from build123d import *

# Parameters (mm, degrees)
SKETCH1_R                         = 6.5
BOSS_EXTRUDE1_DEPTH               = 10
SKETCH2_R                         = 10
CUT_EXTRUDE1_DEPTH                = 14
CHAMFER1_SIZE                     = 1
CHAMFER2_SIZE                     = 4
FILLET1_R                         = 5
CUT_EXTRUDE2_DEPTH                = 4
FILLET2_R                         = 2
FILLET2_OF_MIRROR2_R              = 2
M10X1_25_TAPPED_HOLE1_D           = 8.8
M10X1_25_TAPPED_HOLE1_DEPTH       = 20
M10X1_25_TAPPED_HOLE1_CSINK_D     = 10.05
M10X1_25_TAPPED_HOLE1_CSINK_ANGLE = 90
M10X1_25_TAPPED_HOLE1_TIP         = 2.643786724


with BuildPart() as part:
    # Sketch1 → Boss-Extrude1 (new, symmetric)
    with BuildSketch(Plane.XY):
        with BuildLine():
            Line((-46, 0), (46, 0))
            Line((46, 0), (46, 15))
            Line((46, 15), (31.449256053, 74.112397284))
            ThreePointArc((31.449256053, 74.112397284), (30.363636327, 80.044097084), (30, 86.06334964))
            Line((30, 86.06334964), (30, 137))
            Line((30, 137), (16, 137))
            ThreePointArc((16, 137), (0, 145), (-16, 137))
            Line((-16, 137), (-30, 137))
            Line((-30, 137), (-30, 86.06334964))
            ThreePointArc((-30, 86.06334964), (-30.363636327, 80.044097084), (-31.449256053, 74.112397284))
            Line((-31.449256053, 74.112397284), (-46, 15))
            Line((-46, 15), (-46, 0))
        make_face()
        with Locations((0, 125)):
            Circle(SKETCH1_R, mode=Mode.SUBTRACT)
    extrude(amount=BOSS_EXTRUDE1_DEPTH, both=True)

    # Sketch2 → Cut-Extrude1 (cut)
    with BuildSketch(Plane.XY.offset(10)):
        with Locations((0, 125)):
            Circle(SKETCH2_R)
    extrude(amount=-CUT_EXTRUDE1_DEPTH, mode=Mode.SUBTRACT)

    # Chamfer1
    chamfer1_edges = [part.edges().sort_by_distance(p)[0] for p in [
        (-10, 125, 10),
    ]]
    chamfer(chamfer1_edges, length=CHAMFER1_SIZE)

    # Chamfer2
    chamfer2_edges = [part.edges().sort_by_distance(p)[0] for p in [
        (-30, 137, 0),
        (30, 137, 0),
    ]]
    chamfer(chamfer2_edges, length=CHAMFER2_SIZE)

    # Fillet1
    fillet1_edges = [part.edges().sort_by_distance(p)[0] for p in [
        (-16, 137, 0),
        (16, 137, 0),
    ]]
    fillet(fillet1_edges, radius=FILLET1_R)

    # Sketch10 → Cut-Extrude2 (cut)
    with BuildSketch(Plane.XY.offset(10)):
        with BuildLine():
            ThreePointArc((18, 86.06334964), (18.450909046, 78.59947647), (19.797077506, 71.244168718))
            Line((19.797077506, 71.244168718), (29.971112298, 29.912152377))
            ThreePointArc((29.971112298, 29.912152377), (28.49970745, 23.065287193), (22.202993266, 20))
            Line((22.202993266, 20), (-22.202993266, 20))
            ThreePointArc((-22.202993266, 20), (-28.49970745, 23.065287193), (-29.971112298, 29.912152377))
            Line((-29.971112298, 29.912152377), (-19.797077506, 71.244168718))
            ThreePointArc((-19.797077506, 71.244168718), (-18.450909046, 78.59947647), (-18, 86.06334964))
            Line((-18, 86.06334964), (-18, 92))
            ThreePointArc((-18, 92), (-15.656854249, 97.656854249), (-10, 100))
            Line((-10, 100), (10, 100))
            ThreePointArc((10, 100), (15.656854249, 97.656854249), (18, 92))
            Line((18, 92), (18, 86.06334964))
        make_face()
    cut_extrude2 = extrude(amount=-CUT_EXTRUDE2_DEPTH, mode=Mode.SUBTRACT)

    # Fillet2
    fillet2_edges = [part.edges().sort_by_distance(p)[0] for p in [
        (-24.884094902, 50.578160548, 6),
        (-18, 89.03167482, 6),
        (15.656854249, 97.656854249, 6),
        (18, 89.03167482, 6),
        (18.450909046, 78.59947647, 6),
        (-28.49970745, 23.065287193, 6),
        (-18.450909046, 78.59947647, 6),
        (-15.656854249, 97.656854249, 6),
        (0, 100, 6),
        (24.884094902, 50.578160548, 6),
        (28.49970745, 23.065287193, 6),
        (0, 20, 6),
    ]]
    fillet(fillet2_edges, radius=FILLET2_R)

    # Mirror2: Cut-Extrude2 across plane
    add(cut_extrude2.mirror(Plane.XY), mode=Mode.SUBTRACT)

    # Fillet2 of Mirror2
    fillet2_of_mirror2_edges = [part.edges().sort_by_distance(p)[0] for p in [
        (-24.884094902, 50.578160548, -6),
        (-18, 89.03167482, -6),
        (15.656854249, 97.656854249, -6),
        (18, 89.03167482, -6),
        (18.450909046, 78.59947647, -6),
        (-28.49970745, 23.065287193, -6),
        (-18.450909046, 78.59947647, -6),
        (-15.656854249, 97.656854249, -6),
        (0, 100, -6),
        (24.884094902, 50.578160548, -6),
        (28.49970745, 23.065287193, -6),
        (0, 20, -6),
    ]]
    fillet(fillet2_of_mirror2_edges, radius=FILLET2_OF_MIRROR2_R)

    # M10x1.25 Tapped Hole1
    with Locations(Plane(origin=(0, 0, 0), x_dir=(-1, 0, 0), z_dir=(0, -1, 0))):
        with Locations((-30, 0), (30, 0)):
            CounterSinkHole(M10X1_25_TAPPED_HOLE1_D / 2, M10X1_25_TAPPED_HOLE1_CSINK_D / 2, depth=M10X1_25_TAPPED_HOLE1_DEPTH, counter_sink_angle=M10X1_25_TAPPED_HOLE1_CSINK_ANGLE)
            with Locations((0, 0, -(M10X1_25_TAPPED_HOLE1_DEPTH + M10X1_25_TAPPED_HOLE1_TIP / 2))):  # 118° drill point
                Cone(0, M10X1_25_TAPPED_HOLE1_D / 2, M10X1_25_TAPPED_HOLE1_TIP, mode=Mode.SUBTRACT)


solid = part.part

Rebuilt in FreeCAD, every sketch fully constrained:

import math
import FreeCAD as App
import Part
import Sketcher
Q = App.Units.Quantity


def edges_at(feature, points):
    """Names of the edges that pass closest to the given points."""
    edges = feature.Shape.Edges
    near = lambda p: min(range(len(edges)), key=lambda i: edges[i].distToShape(Part.Vertex(*p))[0])
    return sorted({f"Edge{near(p) + 1}" for p in points})

doc = App.newDocument("Part")
body = doc.addObject("PartDesign::Body", "Body")

# Sketch on XY plane
sketch1 = body.newObject("Sketcher::SketchObject", "Sketch")
sketch1.AttachmentSupport = (doc.getObject("XY_Plane"), [""])
sketch1.MapMode = "FlatFace"
sketch1.addGeometry([
    Part.LineSegment(App.Vector(-46, 0, 0), App.Vector(46, 0, 0)),  # 0
    Part.LineSegment(App.Vector(46, 0, 0), App.Vector(46, 15, 0)),  # 1
    Part.LineSegment(App.Vector(46, 15, 0), App.Vector(31, 74, 0)),  # 2
    Part.ArcOfCircle(Part.Circle(App.Vector(80, 86, 0), App.Vector(0, 0, 1), 50), math.radians(180), math.radians(193.83)),  # 3
    Part.LineSegment(App.Vector(30, 86, 0), App.Vector(30, 137, 0)),  # 4
    Part.LineSegment(App.Vector(30, 137, 0), App.Vector(16, 137, 0)),  # 5
    Part.ArcOfCircle(Part.Circle(App.Vector(0, 125, 0), App.Vector(0, 0, 1), 20), math.radians(37), math.radians(143)),  # 6
    Part.LineSegment(App.Vector(-16, 137, 0), App.Vector(-30, 137, 0)),  # 7
    Part.LineSegment(App.Vector(-30, 137, 0), App.Vector(-30, 86, 0)),  # 8
    Part.ArcOfCircle(Part.Circle(App.Vector(-80, 86, 0), App.Vector(0, 0, 1), 50), math.radians(-13.83), math.radians(0)),  # 9
    Part.LineSegment(App.Vector(-31, 74, 0), App.Vector(-46, 15, 0)),  # 10
    Part.LineSegment(App.Vector(-46, 15, 0), App.Vector(-46, 0, 0)),  # 11
    Part.Circle(App.Vector(0, 125, 0), App.Vector(0, 0, 1), 6),  # 12
], False)
sketch1.addConstraint([
    Sketcher.Constraint("Coincident", 0, 2, 1, 1),
    Sketcher.Constraint("Coincident", 1, 2, 2, 1),
    Sketcher.Constraint("Tangent", 2, 2, 3, 2),
    Sketcher.Constraint("Tangent", 3, 1, 4, 1),
    Sketcher.Constraint("Coincident", 4, 2, 5, 1),
    Sketcher.Constraint("Coincident", 5, 2, 6, 1),
    Sketcher.Constraint("Coincident", 6, 2, 7, 1),
    Sketcher.Constraint("Coincident", 7, 2, 8, 1),
    Sketcher.Constraint("Tangent", 8, 2, 9, 2),
    Sketcher.Constraint("Tangent", 9, 1, 10, 1),
    Sketcher.Constraint("Coincident", 10, 2, 11, 1),
    Sketcher.Constraint("Coincident", 11, 2, 0, 1),
    Sketcher.Constraint("Horizontal", 0),
    Sketcher.Constraint("Vertical", 1),
    Sketcher.Constraint("Vertical", 4),
    Sketcher.Constraint("Horizontal", 5),
    Sketcher.Constraint("Horizontal", 7),
    Sketcher.Constraint("Vertical", 8),
    Sketcher.Constraint("Vertical", 11),
    Sketcher.Constraint("Coincident", 12, 3, 6, 3),
    Sketcher.Constraint("Equal", 3, 9),
    Sketcher.Constraint("Symmetric", 0, 2, 11, 2, -1, 1),
    Sketcher.Constraint("Symmetric", 3, 3, 9, 3, -2),
    Sketcher.Constraint("Symmetric", 5, 2, 6, 2, -2),
    Sketcher.Constraint("Horizontal", 2, 2, 9, 1),
    Sketcher.Constraint("Diameter", 12, Q("13 mm")),
    Sketcher.Constraint("Radius", 3, Q("50 mm")),
    Sketcher.Constraint("Radius", 6, Q("20 mm")),
    Sketcher.Constraint("DistanceX", 0, 1, 0, 2, Q("92 mm")),
    Sketcher.Constraint("DistanceX", 5, 2, 5, 1, Q("14 mm")),
    Sketcher.Constraint("DistanceY", 1, 1, 1, 2, Q("15 mm")),
    Sketcher.Constraint("DistanceX", -1, 1, 3, 3, Q("80 mm")),
    Sketcher.Constraint("DistanceY", -1, 1, 6, 3, Q("125 mm")),
    Sketcher.Constraint("DistanceY", 4, 1, 4, 2, Q("50.93665 mm")),
])
pad1 = body.newObject("PartDesign::Pad", "Pad")
pad1.Profile = sketch1
pad1.Length = 20
pad1.Midplane = True

# Sketch on XY plane
sketch2 = body.newObject("Sketcher::SketchObject", "Sketch001")
sketch2.AttachmentSupport = (doc.getObject("XY_Plane"), [""])
sketch2.MapMode = "FlatFace"
sketch2.AttachmentOffset = App.Placement(App.Vector(0, 0, 10), App.Rotation())
sketch2.addGeometry(Part.Circle(App.Vector(0, 125, 0), App.Vector(0, 0, 1), 10), False)
sketch2.addConstraint([
    Sketcher.Constraint("PointOnObject", 0, 3, -2),
    Sketcher.Constraint("Diameter", 0, Q("20 mm")),
    Sketcher.Constraint("DistanceY", -1, 1, 0, 3, Q("125 mm")),
])
pocket1 = body.newObject("PartDesign::Pocket", "Pocket")
pocket1.Profile = sketch2
pocket1.Length = 14
doc.recompute()

chamfer = body.newObject("PartDesign::Chamfer", "Chamfer")
chamfer.Base = (pocket1, edges_at(pocket1, [(-10, 125, 10)]))
chamfer.Size = 1
doc.recompute()

chamfer2 = body.newObject("PartDesign::Chamfer", "Chamfer001")
chamfer2.Base = (chamfer, edges_at(chamfer, [(-30, 137, 0), (30, 137, 0)]))
chamfer2.Size = 4
doc.recompute()

fillet = body.newObject("PartDesign::Fillet", "Fillet")
fillet.Base = (chamfer2, edges_at(chamfer2, [(-16, 137, 0), (16, 137, 0)]))
fillet.Radius = 5

# Sketch on XY plane
sketch3 = body.newObject("Sketcher::SketchObject", "Sketch002")
sketch3.AttachmentSupport = (doc.getObject("XY_Plane"), [""])
sketch3.MapMode = "FlatFace"
sketch3.AttachmentOffset = App.Placement(App.Vector(0, 0, 10), App.Rotation())
sketch3.addGeometry([
    Part.ArcOfCircle(Part.Circle(App.Vector(80, 86, 0), App.Vector(0, 0, 1), 62), math.radians(-180), math.radians(-166.17)),  # 0
    Part.LineSegment(App.Vector(18, 86, 0), App.Vector(18, 92, 0)),  # 1
    Part.ArcOfCircle(Part.Circle(App.Vector(10, 92, 0), App.Vector(0, 0, 1), 8), math.radians(0), math.radians(90)),  # 2
    Part.LineSegment(App.Vector(10, 100, 0), App.Vector(-10, 100, 0)),  # 3
    Part.ArcOfCircle(Part.Circle(App.Vector(-10, 92, 0), App.Vector(0, 0, 1), 8), math.radians(90), math.radians(180)),  # 4
    Part.LineSegment(App.Vector(-18, 92, 0), App.Vector(-18, 86, 0)),  # 5
    Part.ArcOfCircle(Part.Circle(App.Vector(-80, 86, 0), App.Vector(0, 0, 1), 62), math.radians(-13.83), math.radians(0)),  # 6
    Part.LineSegment(App.Vector(-20, 71, 0), App.Vector(-30, 30, 0)),  # 7
    Part.ArcOfCircle(Part.Circle(App.Vector(-22, 28, 0), App.Vector(0, 0, 1), 8), math.radians(166), math.radians(270)),  # 8
    Part.LineSegment(App.Vector(-22, 20, 0), App.Vector(22, 20, 0)),  # 9
    Part.ArcOfCircle(Part.Circle(App.Vector(22, 28, 0), App.Vector(0, 0, 1), 8), math.radians(-90), math.radians(14)),  # 10
    Part.LineSegment(App.Vector(30, 30, 0), App.Vector(20, 71, 0)),  # 11
], False)
sketch3.addConstraint([
    Sketcher.Constraint("Tangent", 0, 1, 1, 1),
    Sketcher.Constraint("Tangent", 1, 2, 2, 1),
    Sketcher.Constraint("Tangent", 2, 2, 3, 1),
    Sketcher.Constraint("Tangent", 3, 2, 4, 1),
    Sketcher.Constraint("Tangent", 4, 2, 5, 1),
    Sketcher.Constraint("Tangent", 5, 2, 6, 2),
    Sketcher.Constraint("Tangent", 6, 1, 7, 1),
    Sketcher.Constraint("Tangent", 7, 2, 8, 1),
    Sketcher.Constraint("Tangent", 8, 2, 9, 1),
    Sketcher.Constraint("Tangent", 9, 2, 10, 1),
    Sketcher.Constraint("Tangent", 10, 2, 11, 1),
    Sketcher.Constraint("Tangent", 11, 2, 0, 2),
    Sketcher.Constraint("Vertical", 1),
    Sketcher.Constraint("Horizontal", 3),
    Sketcher.Constraint("Vertical", 5),
    Sketcher.Constraint("Horizontal", 9),
    Sketcher.Constraint("Equal", 2, 4),
    Sketcher.Constraint("Equal", 0, 6),
    Sketcher.Constraint("Equal", 4, 8),
    Sketcher.Constraint("Equal", 8, 10),
    Sketcher.Constraint("Symmetric", 0, 3, 6, 3, -2),
    Sketcher.Constraint("Horizontal", 7, 2, 10, 2),
    Sketcher.Constraint("Radius", 0, Q("62 mm")),
    Sketcher.Constraint("Radius", 2, Q("8 mm")),
    Sketcher.Constraint("DistanceX", 3, 2, 3, 1, Q("20 mm")),
    Sketcher.Constraint("DistanceY", -1, 1, 2, 3, Q("92 mm")),
    Sketcher.Constraint("DistanceY", -1, 1, 8, 3, Q("28 mm")),
    Sketcher.Constraint("DistanceY", 1, 1, 1, 2, Q("5.93665 mm")),
    Sketcher.Constraint("Distance", 7, Q("42.565791 mm")),
])
pocket2 = body.newObject("PartDesign::Pocket", "Pocket001")
pocket2.Profile = sketch3
pocket2.Length = 4
doc.recompute()

fillet2 = body.newObject("PartDesign::Fillet", "Fillet001")
fillet2.Base = (pocket2, edges_at(pocket2, [
    (-24.884, 50.578, 6),
    (-18, 89.032, 6),
    (15.657, 97.657, 6),
    (18, 89.032, 6),
    (18.451, 78.599, 6),
    (-28.5, 23.065, 6),
    (-18.451, 78.599, 6),
    (-15.657, 97.657, 6),
    (0, 100, 6),
    (24.884, 50.578, 6),
    (28.5, 23.065, 6),
    (0, 20, 6),
]))
fillet2.Radius = 2
doc.recompute()

mirrored = body.newObject("PartDesign::Mirrored", "Mirrored")
mirrored.Originals = [pocket2]
mirrored.MirrorPlane = (doc.getObject("XY_Plane"), [""])
body.Tip = mirrored
doc.recompute()

fillet3 = body.newObject("PartDesign::Fillet", "Fillet002")
fillet3.Base = (mirrored, edges_at(mirrored, [
    (-24.884, 50.578, -6),
    (-18, 89.032, -6),
    (15.657, 97.657, -6),
    (18, 89.032, -6),
    (18.451, 78.599, -6),
    (-28.5, 23.065, -6),
    (-18.451, 78.599, -6),
    (-15.657, 97.657, -6),
    (0, 100, -6),
    (24.884, 50.578, -6),
    (28.5, 23.065, -6),
    (0, 20, -6),
]))
fillet3.Radius = 2

# Sketch on XZ plane
sketch4 = body.newObject("Sketcher::SketchObject", "Sketch003")
sketch4.AttachmentSupport = (doc.getObject("XZ_Plane"), [""])
sketch4.MapMode = "FlatFace"
sketch4.addGeometry([
    Part.Circle(App.Vector(30, 0, 0), App.Vector(0, 0, 1), 4.4),
    Part.Circle(App.Vector(-30, 0, 0), App.Vector(0, 0, 1), 4.4),
], False)
sketch4.addConstraint([
    Sketcher.Constraint("Equal", 0, 1),
    Sketcher.Constraint("Symmetric", 0, 3, 1, 3, -1, 1),
    Sketcher.Constraint("PointOnObject", 0, 3, -1),
    Sketcher.Constraint("Diameter", 0, Q("8.8 mm")),
    Sketcher.Constraint("DistanceX", -1, 1, 0, 3, Q("30 mm")),
])
doc.recompute()
hole = body.newObject("PartDesign::Hole", "Hole")
hole.Profile = sketch4
hole.ThreadType = "None"
hole.Diameter = 8.8
hole.DepthType = "Dimension"
hole.Depth = 20
hole.DrillPoint = "Angled"
hole.DrillPointAngle = 118
hole.HoleCutType = "Countersink"
hole.HoleCutDiameter = 10.05
hole.HoleCutCountersinkAngle = 90

doc.recompute()
